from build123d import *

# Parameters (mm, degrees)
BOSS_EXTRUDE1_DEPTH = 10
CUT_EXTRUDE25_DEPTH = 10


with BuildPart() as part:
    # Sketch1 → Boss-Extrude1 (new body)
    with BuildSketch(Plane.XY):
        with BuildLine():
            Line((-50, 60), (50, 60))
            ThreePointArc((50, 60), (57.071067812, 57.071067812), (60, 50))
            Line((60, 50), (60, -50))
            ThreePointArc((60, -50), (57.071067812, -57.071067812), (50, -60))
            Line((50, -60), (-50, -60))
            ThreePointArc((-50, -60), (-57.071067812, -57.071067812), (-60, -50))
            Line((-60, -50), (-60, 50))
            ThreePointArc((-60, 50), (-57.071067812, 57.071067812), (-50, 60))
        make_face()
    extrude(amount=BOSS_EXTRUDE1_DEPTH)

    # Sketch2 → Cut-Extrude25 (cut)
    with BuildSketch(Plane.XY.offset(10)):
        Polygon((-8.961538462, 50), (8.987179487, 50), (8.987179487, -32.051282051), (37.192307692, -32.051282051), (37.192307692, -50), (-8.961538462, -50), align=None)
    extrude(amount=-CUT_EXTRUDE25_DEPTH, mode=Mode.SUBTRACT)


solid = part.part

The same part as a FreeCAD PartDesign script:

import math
import FreeCAD as App
import Part
import Sketcher
from FreeCAD import Vector


def add_polygon(sketch, points):
    """Adds a closed chain of lines whose ends are joined by coincident constraints."""
    first, n = sketch.GeometryCount, len(points)
    for a, b in zip(points, points[1:] + points[:1]):
        sketch.addGeometry(Part.LineSegment(App.Vector(*a, 0), App.Vector(*b, 0)), False)
    for i in range(n):
        sketch.addConstraint(Sketcher.Constraint("Coincident", first + i, 2, first + (i + 1) % n, 1))

doc = App.newDocument("Part")
params = doc.addObject("Spreadsheet::Sheet", "Params")
for row, (alias, value) in enumerate([
    ("sketch1_radius", "10 mm"),
    ("sketch1_width", "100 mm"),
    ("pad1_length", "10 mm"),
    ("sketch2_height", "100 mm"),
    ("pocket1_length", "10 mm"),
], start=1):
    params.set(f"A{row}", alias)
    params.set(f"B{row}", "=" + value)
    params.setAlias(f"B{row}", alias)

body = doc.addObject("PartDesign::Body", "Body")

# Sketch on XY plane
sketch1 = doc.addObject("Sketcher::SketchObject", "Sketch")
body.addObject(sketch1)
sketch1.AttachmentSupport = (doc.XY_Plane, [""])
sketch1.MapMode = "FlatFace"
sketch1.addGeometry(Part.LineSegment(Vector(50, 60, 0), Vector(-50, 60, 0)), False)
sketch1.addGeometry(Part.ArcOfCircle(Part.Circle(Vector(-50, 50, 0), Vector(0, 0, 1), 10), math.radians(90), math.radians(180)), False)
sketch1.addGeometry(Part.LineSegment(Vector(-60, 50, 0), Vector(-60, -50, 0)), False)
sketch1.addGeometry(Part.ArcOfCircle(Part.Circle(Vector(-50, -50, 0), Vector(0, 0, 1), 10), math.radians(180), math.radians(270)), False)
sketch1.addGeometry(Part.LineSegment(Vector(-50, -60, 0), Vector(50, -60, 0)), False)
sketch1.addGeometry(Part.ArcOfCircle(Part.Circle(Vector(50, -50, 0), Vector(0, 0, 1), 10), math.radians(-90), math.radians(0)), False)
sketch1.addGeometry(Part.LineSegment(Vector(60, -50, 0), Vector(60, 50, 0)), False)
sketch1.addGeometry(Part.ArcOfCircle(Part.Circle(Vector(50, 50, 0), Vector(0, 0, 1), 10), math.radians(0), math.radians(90)), False)
sketch1.addConstraint(Sketcher.Constraint("Tangent", 0, 2, 1, 1))
sketch1.addConstraint(Sketcher.Constraint("Tangent", 1, 2, 2, 1))
sketch1.addConstraint(Sketcher.Constraint("Tangent", 2, 2, 3, 1))
sketch1.addConstraint(Sketcher.Constraint("Tangent", 3, 2, 4, 1))
sketch1.addConstraint(Sketcher.Constraint("Tangent", 4, 2, 5, 1))
sketch1.addConstraint(Sketcher.Constraint("Tangent", 5, 2, 6, 1))
sketch1.addConstraint(Sketcher.Constraint("Tangent", 6, 2, 7, 1))
sketch1.addConstraint(Sketcher.Constraint("Tangent", 7, 2, 0, 1))
sketch1.addConstraint(Sketcher.Constraint("Horizontal", 0))
sketch1.addConstraint(Sketcher.Constraint("Vertical", 2))
sketch1.addConstraint(Sketcher.Constraint("Horizontal", 4))
sketch1.addConstraint(Sketcher.Constraint("Vertical", 6))
sketch1.addConstraint(Sketcher.Constraint("Equal", 1, 3))
sketch1.addConstraint(Sketcher.Constraint("Equal", 3, 5))
sketch1.addConstraint(Sketcher.Constraint("Equal", 5, 7))
sketch1.addConstraint(Sketcher.Constraint("Symmetric", 1, 3, 5, 3, -1, 1))
sketch1.addConstraint(Sketcher.Constraint("Equal", 4, 2))
sketch1.addConstraint(Sketcher.Constraint("Radius", 1, 10.0))
sketch1.addConstraint(Sketcher.Constraint("DistanceX", 0, 2, 0, 1, 100.0))
sketch1.setExpression("Constraints[17]", "Params.sketch1_radius")
sketch1.setExpression("Constraints[18]", "Params.sketch1_width")
pad1 = doc.addObject("PartDesign::Pad", "Pad")
body.addObject(pad1)
pad1.Profile = sketch1
pad1.setExpression("Length", "Params.pad1_length")

# Sketch on XY plane
sketch2 = doc.addObject("Sketcher::SketchObject", "Sketch001")
body.addObject(sketch2)
sketch2.AttachmentSupport = (doc.XY_Plane, [""])
sketch2.MapMode = "FlatFace"
sketch2.AttachmentOffset = App.Placement(Vector(0, 0, 10), App.Rotation())
add_polygon(sketch2, [(9, 50), (-9, 50), (-9, -50), (37, -50), (37, -32), (9, -32)])  # lines 0-5
sketch2.addConstraint(Sketcher.Constraint("Horizontal", 0))
sketch2.addConstraint(Sketcher.Constraint("Vertical", 1))
sketch2.addConstraint(Sketcher.Constraint("Horizontal", 2))
sketch2.addConstraint(Sketcher.Constraint("Vertical", 3))
sketch2.addConstraint(Sketcher.Constraint("Horizontal", 4))
sketch2.addConstraint(Sketcher.Constraint("Vertical", 5))
sketch2.addConstraint(Sketcher.Constraint("Equal", 0, 3))
sketch2.addConstraint(Sketcher.Constraint("DistanceY", 1, 2, 1, 1, 100.0))
sketch2.addConstraint(Sketcher.Constraint("DistanceY", -1, 1, 0, 2, 50.0))
sketch2.addConstraint(Sketcher.Constraint("DistanceX", 4, 2, 4, 1, 28.205128))
sketch2.addConstraint(Sketcher.Constraint("DistanceX", 0, 2, 0, 1, 17.948718))
sketch2.addConstraint(Sketcher.Constraint("DistanceX", 0, 2, -1, 1, 8.961538))
sketch2.setExpression("Constraints[13]", "Params.sketch2_height")
pocket1 = doc.addObject("PartDesign::Pocket", "Pocket")
body.addObject(pocket1)
pocket1.Profile = sketch2
pocket1.setExpression("Length", "Params.pocket1_length")

doc.recompute()
